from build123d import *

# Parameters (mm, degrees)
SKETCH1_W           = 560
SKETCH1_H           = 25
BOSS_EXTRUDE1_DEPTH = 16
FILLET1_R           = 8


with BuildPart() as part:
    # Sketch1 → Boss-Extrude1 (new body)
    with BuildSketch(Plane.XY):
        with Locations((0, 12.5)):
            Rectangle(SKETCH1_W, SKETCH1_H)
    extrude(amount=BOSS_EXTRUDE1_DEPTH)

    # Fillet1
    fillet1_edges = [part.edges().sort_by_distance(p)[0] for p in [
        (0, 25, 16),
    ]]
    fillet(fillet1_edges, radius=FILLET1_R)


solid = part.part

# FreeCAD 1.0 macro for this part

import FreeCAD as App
import Part
import Sketcher


def edges_at(feature, points):
    """Names of the edges that pass closest to the given points."""
    edges = feature.Shape.Edges
    near = lambda p: min(range(len(edges)), key=lambda i: edges[i].distToShape(Part.Vertex(*p))[0])
    return sorted({f"Edge{near(p) + 1}" for p in points})


def add_polygon(sketch, points):
    """Adds a closed chain of lines whose ends are joined by coincident constraints."""
    first, n = sketch.GeometryCount, len(points)
    for a, b in zip(points, points[1:] + points[:1]):
        sketch.addGeometry(Part.LineSegment(App.Vector(*a, 0), App.Vector(*b, 0)), False)
    for i in range(n):
        sketch.addConstraint(Sketcher.Constraint("Coincident", first + i, 2, first + (i + 1) % n, 1))

doc = App.newDocument("Part")
body = doc.addObject("PartDesign::Body", "Body")

sketch1 = body.newObject("Sketcher::SketchObject", "Sketch")
sketch1.AttachmentSupport = (doc.getObject("XY_Plane"), [""])
sketch1.MapMode = "FlatFace"
add_polygon(sketch1, [(-280, 25), (-280, 0), (280, 0), (280, 25)])
sketch1.addConstraint([
    Sketcher.Constraint("Vertical", 0),
    Sketcher.Constraint("Horizontal", 1),
    Sketcher.Constraint("Vertical", 2),
    Sketcher.Constraint("Horizontal", 3),
    Sketcher.Constraint("Symmetric", 0, 2, 1, 2, -1, 1),
    Sketcher.Constraint("DistanceX", 1, 1, 1, 2, 560.0),
    Sketcher.Constraint("DistanceY", 0, 2, 0, 1, 25.0),
])
pad1 = body.newObject("PartDesign::Pad", "Pad")
pad1.Profile = sketch1
pad1.Length = 16
doc.recompute()

fillet = body.newObject("PartDesign::Fillet", "Fillet")
fillet.Base = (pad1, edges_at(pad1, [(0, 25, 16)]))
fillet.Radius = 8

doc.recompute()
